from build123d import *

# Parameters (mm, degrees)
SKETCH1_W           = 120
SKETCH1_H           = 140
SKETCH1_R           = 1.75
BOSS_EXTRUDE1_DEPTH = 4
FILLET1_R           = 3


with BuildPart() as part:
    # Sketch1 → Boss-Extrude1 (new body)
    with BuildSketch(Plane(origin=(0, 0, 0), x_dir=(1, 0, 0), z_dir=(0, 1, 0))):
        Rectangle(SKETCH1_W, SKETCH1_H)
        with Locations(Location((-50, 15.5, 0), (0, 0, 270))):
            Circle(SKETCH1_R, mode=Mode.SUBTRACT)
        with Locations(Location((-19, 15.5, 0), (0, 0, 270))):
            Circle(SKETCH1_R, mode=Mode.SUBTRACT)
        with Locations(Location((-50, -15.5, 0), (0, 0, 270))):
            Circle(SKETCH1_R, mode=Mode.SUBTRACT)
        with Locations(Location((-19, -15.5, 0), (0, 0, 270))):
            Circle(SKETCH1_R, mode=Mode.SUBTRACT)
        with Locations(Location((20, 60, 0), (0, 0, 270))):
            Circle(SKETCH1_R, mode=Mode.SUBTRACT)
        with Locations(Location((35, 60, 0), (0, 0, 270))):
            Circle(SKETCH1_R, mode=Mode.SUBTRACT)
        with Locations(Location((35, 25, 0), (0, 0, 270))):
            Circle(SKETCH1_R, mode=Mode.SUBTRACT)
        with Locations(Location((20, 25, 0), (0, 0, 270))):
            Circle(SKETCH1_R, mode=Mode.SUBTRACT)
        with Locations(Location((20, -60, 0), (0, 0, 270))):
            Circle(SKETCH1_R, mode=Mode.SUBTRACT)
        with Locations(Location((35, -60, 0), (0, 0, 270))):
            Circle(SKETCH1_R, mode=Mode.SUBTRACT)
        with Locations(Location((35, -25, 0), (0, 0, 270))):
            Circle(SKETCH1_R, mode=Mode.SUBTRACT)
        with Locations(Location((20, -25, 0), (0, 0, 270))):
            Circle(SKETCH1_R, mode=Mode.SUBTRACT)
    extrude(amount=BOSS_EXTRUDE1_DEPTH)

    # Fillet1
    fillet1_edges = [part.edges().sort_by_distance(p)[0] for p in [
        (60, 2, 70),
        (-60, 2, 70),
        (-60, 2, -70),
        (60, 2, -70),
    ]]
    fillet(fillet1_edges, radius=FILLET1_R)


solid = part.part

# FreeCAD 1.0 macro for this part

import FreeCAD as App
import Part
import Sketcher

V = App.Vector
Q = App.Units.Quantity


def edges_at(feature, points):
    """Names of the edges that pass closest to the given points."""
    edges = feature.Shape.Edges
    near = lambda p: min(range(len(edges)), key=lambda i: edges[i].distToShape(Part.Vertex(*p))[0])
    return sorted({f"Edge{near(p) + 1}" for p in points})

doc = App.newDocument("Part")
body = doc.addObject("PartDesign::Body", "Body")

# Sketch on XZ plane
sketch1 = body.newObject("Sketcher::SketchObject", "Sketch")
sketch1.AttachmentSupport = (doc.getObject("XZ_Plane"), [""])
sketch1.MapMode = "FlatFace"
sketch1.addGeometry(Part.LineSegment(V(-60, -70, 0), V(-60, 70, 0)), False)
sketch1.addGeometry(Part.LineSegment(V(-60, 70, 0), V(60, 70, 0)), False)
sketch1.addGeometry(Part.LineSegment(V(60, 70, 0), V(60, -70, 0)), False)
sketch1.addGeometry(Part.LineSegment(V(60, -70, 0), V(-60, -70, 0)), False)
sketch1.addGeometry(Part.Circle(V(-50, 15.5, 0), V(0, 0, 1), 1.8), False)
sketch1.addGeometry(Part.Circle(V(-19, 15.5, 0), V(0, 0, 1), 1.8), False)
sketch1.addGeometry(Part.Circle(V(20, 60, 0), V(0, 0, 1), 1.8), False)
sketch1.addGeometry(Part.Circle(V(35, 60, 0), V(0, 0, 1), 1.8), False)
sketch1.addGeometry(Part.Circle(V(20, 25, 0), V(0, 0, 1), 1.8), False)
sketch1.addGeometry(Part.Circle(V(35, 25, 0), V(0, 0, 1), 1.8), False)
sketch1.addGeometry(Part.Circle(V(-50, -15.5, 0), V(0, 0, 1), 1.8), False)
sketch1.addGeometry(Part.Circle(V(-19, -15.5, 0), V(0, 0, 1), 1.8), False)
sketch1.addGeometry(Part.Circle(V(20, -25, 0), V(0, 0, 1), 1.8), False)
sketch1.addGeometry(Part.Circle(V(35, -25, 0), V(0, 0, 1), 1.8), False)
sketch1.addGeometry(Part.Circle(V(20, -60, 0), V(0, 0, 1), 1.8), False)
sketch1.addGeometry(Part.Circle(V(35, -60, 0), V(0, 0, 1), 1.8), False)
sketch1.addConstraint(Sketcher.Constraint("Coincident", 0, 2, 1, 1))
sketch1.addConstraint(Sketcher.Constraint("Coincident", 1, 2, 2, 1))
sketch1.addConstraint(Sketcher.Constraint("Coincident", 2, 2, 3, 1))
sketch1.addConstraint(Sketcher.Constraint("Coincident", 3, 2, 0, 1))
sketch1.addConstraint(Sketcher.Constraint("Vertical", 0))
sketch1.addConstraint(Sketcher.Constraint("Horizontal", 1))
sketch1.addConstraint(Sketcher.Constraint("Vertical", 2))
sketch1.addConstraint(Sketcher.Constraint("Horizontal", 3))
sketch1.addConstraint(Sketcher.Constraint("Equal", 4, 5))
sketch1.addConstraint(Sketcher.Constraint("Equal", 5, 6))
sketch1.addConstraint(Sketcher.Constraint("Equal", 6, 7))
sketch1.addConstraint(Sketcher.Constraint("Equal", 7, 8))
sketch1.addConstraint(Sketcher.Constraint("Equal", 8, 9))
sketch1.addConstraint(Sketcher.Constraint("Equal", 9, 10))
sketch1.addConstraint(Sketcher.Constraint("Equal", 10, 11))
sketch1.addConstraint(Sketcher.Constraint("Equal", 11, 12))
sketch1.addConstraint(Sketcher.Constraint("Equal", 12, 13))
sketch1.addConstraint(Sketcher.Constraint("Equal", 13, 14))
sketch1.addConstraint(Sketcher.Constraint("Equal", 14, 15))
sketch1.addConstraint(Sketcher.Constraint("Symmetric", 0, 2, 2, 2, -1, 1))
sketch1.addConstraint(Sketcher.Constraint("Symmetric", 4, 3, 10, 3, -1))
sketch1.addConstraint(Sketcher.Constraint("Symmetric", 5, 3, 11, 3, -1))
sketch1.addConstraint(Sketcher.Constraint("Symmetric", 8, 3, 12, 3, -1))
sketch1.addConstraint(Sketcher.Constraint("Symmetric", 9, 3, 13, 3, -1))
sketch1.addConstraint(Sketcher.Constraint("Symmetric", 6, 3, 14, 3, -1))
sketch1.addConstraint(Sketcher.Constraint("Symmetric", 7, 3, 15, 3, -1))
sketch1.addConstraint(Sketcher.Constraint("Horizontal", 4, 3, 5, 3))
sketch1.addConstraint(Sketcher.Constraint("Horizontal", 6, 3, 7, 3))
sketch1.addConstraint(Sketcher.Constraint("Horizontal", 8, 3, 9, 3))
sketch1.addConstraint(Sketcher.Constraint("Vertical", 6, 3, 8, 3))
sketch1.addConstraint(Sketcher.Constraint("Vertical", 7, 3, 9, 3))
sketch1.addConstraint(Sketcher.Constraint("Diameter", 4, Q("3.5 mm")))
sketch1.addConstraint(Sketcher.Constraint("DistanceX", 1, 1, 1, 2, Q("120 mm")))
sketch1.addConstraint(Sketcher.Constraint("DistanceY", 0, 1, 0, 2, Q("140 mm")))
sketch1.addConstraint(Sketcher.Constraint("DistanceX", 4, 3, -1, 1, Q("50 mm")))
sketch1.addConstraint(Sketcher.Constraint("DistanceX", 5, 3, -1, 1, Q("19 mm")))
sketch1.addConstraint(Sketcher.Constraint("DistanceX", -1, 1, 6, 3, Q("20 mm")))
sketch1.addConstraint(Sketcher.Constraint("DistanceY", -1, 1, 6, 3, Q("60 mm")))
sketch1.addConstraint(Sketcher.Constraint("DistanceX", -1, 1, 7, 3, Q("35 mm")))
sketch1.addConstraint(Sketcher.Constraint("DistanceY", -1, 1, 8, 3, Q("25 mm")))
sketch1.addConstraint(Sketcher.Constraint("DistanceY", 10, 3, 4, 3, Q("31 mm")))
pad1 = body.newObject("PartDesign::Pad", "Pad")
pad1.Profile = sketch1
pad1.Length = 4
pad1.Reversed = True
doc.recompute()

fillet = body.newObject("PartDesign::Fillet", "Fillet")
fillet.Base = (pad1, edges_at(pad1, [
    (60, 2, 70),
    (-60, 2, 70),
    (-60, 2, -70),
    (60, 2, -70),
]))
fillet.Radius = 3

doc.recompute()
